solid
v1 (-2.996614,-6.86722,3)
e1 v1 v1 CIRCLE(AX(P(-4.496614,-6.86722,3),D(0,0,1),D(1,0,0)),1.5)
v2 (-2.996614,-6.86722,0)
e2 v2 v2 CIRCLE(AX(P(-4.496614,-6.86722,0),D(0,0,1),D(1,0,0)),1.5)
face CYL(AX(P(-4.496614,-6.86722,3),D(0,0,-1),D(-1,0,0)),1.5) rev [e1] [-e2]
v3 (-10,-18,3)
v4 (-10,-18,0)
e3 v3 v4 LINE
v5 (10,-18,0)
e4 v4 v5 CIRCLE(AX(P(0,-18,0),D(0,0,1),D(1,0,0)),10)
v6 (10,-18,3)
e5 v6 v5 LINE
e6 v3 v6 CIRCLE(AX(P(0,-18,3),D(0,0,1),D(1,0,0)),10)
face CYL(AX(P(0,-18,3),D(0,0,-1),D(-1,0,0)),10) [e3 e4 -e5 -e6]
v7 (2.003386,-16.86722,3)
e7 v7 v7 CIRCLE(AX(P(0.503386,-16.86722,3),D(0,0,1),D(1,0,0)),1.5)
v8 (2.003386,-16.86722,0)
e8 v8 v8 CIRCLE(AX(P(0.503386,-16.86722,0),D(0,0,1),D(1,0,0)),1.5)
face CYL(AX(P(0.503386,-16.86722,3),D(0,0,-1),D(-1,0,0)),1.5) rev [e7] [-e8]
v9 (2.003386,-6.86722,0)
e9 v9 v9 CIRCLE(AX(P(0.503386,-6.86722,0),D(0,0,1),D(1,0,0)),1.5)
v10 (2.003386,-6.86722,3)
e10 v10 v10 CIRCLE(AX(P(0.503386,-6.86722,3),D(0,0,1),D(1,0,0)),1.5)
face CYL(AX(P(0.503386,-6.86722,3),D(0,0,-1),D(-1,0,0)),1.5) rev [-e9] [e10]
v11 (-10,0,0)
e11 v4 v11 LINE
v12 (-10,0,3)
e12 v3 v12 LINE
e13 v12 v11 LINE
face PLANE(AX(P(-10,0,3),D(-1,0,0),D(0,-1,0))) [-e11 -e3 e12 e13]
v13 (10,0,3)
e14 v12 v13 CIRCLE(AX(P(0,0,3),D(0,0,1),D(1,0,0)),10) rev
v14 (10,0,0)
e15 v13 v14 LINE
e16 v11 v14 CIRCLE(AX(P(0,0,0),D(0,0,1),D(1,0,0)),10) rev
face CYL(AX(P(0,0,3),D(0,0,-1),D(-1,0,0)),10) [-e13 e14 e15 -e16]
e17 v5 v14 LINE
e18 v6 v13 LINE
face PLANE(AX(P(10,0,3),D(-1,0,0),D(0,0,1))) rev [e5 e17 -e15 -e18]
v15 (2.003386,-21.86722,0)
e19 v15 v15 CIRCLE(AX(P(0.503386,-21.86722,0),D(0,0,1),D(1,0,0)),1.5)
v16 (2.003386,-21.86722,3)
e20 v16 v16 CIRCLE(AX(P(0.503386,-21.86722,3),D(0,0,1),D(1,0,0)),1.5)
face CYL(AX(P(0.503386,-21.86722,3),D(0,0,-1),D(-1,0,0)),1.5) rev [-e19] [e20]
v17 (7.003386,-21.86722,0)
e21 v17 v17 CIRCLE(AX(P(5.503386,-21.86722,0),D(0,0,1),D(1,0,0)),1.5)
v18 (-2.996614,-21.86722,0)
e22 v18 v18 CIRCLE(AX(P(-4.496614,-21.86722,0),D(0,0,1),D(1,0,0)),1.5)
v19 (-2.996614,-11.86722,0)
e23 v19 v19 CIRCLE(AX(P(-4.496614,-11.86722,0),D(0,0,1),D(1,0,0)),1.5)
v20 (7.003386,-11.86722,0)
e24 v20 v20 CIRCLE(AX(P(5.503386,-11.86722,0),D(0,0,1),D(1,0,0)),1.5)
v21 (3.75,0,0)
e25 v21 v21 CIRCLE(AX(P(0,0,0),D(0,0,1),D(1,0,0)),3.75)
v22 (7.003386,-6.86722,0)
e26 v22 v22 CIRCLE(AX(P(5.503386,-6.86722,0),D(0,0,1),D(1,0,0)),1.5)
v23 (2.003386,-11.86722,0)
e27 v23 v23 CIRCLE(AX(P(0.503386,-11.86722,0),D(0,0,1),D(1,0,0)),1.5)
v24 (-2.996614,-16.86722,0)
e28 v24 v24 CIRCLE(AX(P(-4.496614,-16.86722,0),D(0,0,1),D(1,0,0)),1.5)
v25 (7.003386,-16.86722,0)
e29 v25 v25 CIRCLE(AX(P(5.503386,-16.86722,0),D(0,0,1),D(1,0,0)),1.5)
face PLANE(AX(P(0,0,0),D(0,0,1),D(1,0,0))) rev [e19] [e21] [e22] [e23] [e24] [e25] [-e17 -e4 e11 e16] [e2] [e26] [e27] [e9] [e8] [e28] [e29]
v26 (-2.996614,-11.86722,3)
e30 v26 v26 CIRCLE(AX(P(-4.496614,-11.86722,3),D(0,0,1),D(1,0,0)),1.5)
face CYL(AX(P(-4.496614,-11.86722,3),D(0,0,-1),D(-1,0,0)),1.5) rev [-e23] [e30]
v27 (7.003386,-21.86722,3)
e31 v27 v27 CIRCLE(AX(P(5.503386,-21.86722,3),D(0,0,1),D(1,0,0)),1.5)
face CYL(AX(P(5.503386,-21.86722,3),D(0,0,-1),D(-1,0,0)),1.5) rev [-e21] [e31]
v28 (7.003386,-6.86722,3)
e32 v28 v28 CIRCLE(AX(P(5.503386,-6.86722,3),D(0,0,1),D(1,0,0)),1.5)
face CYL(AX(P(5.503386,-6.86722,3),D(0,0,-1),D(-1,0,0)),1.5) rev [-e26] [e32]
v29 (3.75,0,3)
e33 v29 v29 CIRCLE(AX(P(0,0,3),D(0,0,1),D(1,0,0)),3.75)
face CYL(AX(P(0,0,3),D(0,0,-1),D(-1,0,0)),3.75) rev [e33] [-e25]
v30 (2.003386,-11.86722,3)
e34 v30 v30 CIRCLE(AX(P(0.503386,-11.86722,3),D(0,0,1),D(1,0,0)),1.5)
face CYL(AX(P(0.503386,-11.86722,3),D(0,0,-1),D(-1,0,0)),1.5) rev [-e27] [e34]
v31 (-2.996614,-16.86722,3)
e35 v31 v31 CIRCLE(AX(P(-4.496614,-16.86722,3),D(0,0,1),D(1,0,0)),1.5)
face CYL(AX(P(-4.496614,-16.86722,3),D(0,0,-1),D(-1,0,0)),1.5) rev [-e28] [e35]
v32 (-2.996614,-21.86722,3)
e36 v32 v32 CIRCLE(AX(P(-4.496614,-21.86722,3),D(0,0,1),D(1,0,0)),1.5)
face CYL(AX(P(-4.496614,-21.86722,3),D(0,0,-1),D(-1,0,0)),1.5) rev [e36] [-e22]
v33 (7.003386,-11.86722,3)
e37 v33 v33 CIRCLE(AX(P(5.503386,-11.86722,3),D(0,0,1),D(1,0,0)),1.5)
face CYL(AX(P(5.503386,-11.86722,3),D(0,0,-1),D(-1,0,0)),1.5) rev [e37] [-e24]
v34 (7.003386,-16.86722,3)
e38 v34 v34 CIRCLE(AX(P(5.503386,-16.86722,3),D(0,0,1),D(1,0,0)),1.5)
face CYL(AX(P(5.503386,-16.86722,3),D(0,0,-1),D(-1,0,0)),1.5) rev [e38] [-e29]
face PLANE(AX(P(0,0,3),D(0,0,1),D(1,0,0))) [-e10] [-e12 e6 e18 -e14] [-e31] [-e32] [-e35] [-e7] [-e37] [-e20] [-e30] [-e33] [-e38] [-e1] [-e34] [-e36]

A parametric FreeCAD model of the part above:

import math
import FreeCAD as App
import Part
import Sketcher

V = App.Vector

doc = App.newDocument("Part")
body = doc.addObject("PartDesign::Body", "Body")

# Sketch on XY plane
sketch1 = body.newObject("Sketcher::SketchObject", "Sketch")
sketch1.AttachmentSupport = (doc.getObject("XY_Plane"), [""])
sketch1.MapMode = "FlatFace"
sketch1.addGeometry(Part.LineSegment(V(-10, 0, 0), V(-10, -18, 0)), False)
sketch1.addGeometry(Part.ArcOfCircle(Part.Circle(V(0, -18, 0), V(0, 0, 1), 10), math.radians(180), math.radians(360)), False)
sketch1.addGeometry(Part.LineSegment(V(10, -18, 0), V(10, 0, 0)), False)
sketch1.addGeometry(Part.ArcOfCircle(Part.Circle(V(0, 0, 0), V(0, 0, 1), 10), math.radians(0), math.radians(180)), False)
sketch1.addGeometry(Part.Circle(V(5.5, -21.9, 0), V(0, 0, 1), 1.5), False)
sketch1.addGeometry(Part.Circle(V(5.5, -16.9, 0), V(0, 0, 1), 1.5), False)
sketch1.addGeometry(Part.Circle(V(5.5, -11.9, 0), V(0, 0, 1), 1.5), False)
sketch1.addGeometry(Part.Circle(V(0.5, -21.9, 0), V(0, 0, 1), 1.5), False)
sketch1.addGeometry(Part.Circle(V(0.5, -16.9, 0), V(0, 0, 1), 1.5), False)
sketch1.addGeometry(Part.Circle(V(-4.5, -21.9, 0), V(0, 0, 1), 1.5), False)
sketch1.addGeometry(Part.Circle(V(-4.5, -16.9, 0), V(0, 0, 1), 1.5), False)
sketch1.addGeometry(Part.Circle(V(0.5, -11.9, 0), V(0, 0, 1), 1.5), False)
sketch1.addGeometry(Part.Circle(V(-4.5, -11.9, 0), V(0, 0, 1), 1.5), False)
sketch1.addGeometry(Part.Circle(V(5.5, -6.9, 0), V(0, 0, 1), 1.5), False)
sketch1.addGeometry(Part.Circle(V(0.5, -6.9, 0), V(0, 0, 1), 1.5), False)
sketch1.addGeometry(Part.Circle(V(-4.5, -6.9, 0), V(0, 0, 1), 1.5), False)
sketch1.addGeometry(Part.Circle(V(0, 0, 0), V(0, 0, 1), 3.8), False)
sketch1.addConstraint(Sketcher.Constraint("Tangent", 0, 2, 1, 1))
sketch1.addConstraint(Sketcher.Constraint("Tangent", 1, 2, 2, 1))
sketch1.addConstraint(Sketcher.Constraint("Tangent", 2, 2, 3, 1))
sketch1.addConstraint(Sketcher.Constraint("Tangent", 3, 2, 0, 1))
sketch1.addConstraint(Sketcher.Constraint("Vertical", 0))
sketch1.addConstraint(Sketcher.Constraint("Vertical", 2))
sketch1.addConstraint(Sketcher.Constraint("Coincident", 3, 3, -1, 1))
sketch1.addConstraint(Sketcher.Constraint("Coincident", 16, 3, -1, 1))
sketch1.addConstraint(Sketcher.Constraint("Equal", 4, 5))
sketch1.addConstraint(Sketcher.Constraint("Equal", 5, 6))
sketch1.addConstraint(Sketcher.Constraint("Equal", 6, 7))
sketch1.addConstraint(Sketcher.Constraint("Equal", 7, 8))
sketch1.addConstraint(Sketcher.Constraint("Equal", 8, 9))
sketch1.addConstraint(Sketcher.Constraint("Equal", 9, 10))
sketch1.addConstraint(Sketcher.Constraint("Equal", 10, 11))
sketch1.addConstraint(Sketcher.Constraint("Equal", 11, 12))
sketch1.addConstraint(Sketcher.Constraint("Equal", 12, 13))
sketch1.addConstraint(Sketcher.Constraint("Equal", 13, 14))
sketch1.addConstraint(Sketcher.Constraint("Equal", 14, 15))
sketch1.addConstraint(Sketcher.Constraint("Horizontal", 4, 3, 7, 3))
sketch1.addConstraint(Sketcher.Constraint("Horizontal", 5, 3, 8, 3))
sketch1.addConstraint(Sketcher.Constraint("Horizontal", 7, 3, 9, 3))
sketch1.addConstraint(Sketcher.Constraint("Horizontal", 8, 3, 10, 3))
sketch1.addConstraint(Sketcher.Constraint("Horizontal", 6, 3, 11, 3))
sketch1.addConstraint(Sketcher.Constraint("Horizontal", 11, 3, 12, 3))
sketch1.addConstraint(Sketcher.Constraint("Horizontal", 13, 3, 14, 3))
sketch1.addConstraint(Sketcher.Constraint("Horizontal", 14, 3, 15, 3))
sketch1.addConstraint(Sketcher.Constraint("Vertical", 4, 3, 5, 3))
sketch1.addConstraint(Sketcher.Constraint("Vertical", 5, 3, 6, 3))
sketch1.addConstraint(Sketcher.Constraint("Vertical", 7, 3, 8, 3))
sketch1.addConstraint(Sketcher.Constraint("Vertical", 9, 3, 10, 3))
sketch1.addConstraint(Sketcher.Constraint("Vertical", 8, 3, 11, 3))
sketch1.addConstraint(Sketcher.Constraint("Vertical", 10, 3, 12, 3))
sketch1.addConstraint(Sketcher.Constraint("Vertical", 6, 3, 13, 3))
sketch1.addConstraint(Sketcher.Constraint("Vertical", 11, 3, 14, 3))
sketch1.addConstraint(Sketcher.Constraint("Vertical", 12, 3, 15, 3))
sketch1.addConstraint(Sketcher.Constraint("Diameter", 4, 3.0))
sketch1.addConstraint(Sketcher.Constraint("Radius", 1, 10.0))
sketch1.addConstraint(Sketcher.Constraint("Diameter", 16, 7.5))
sketch1.addConstraint(Sketcher.Constraint("DistanceY", 0, 2, 0, 1, 18.0))
sketch1.addConstraint(Sketcher.Constraint("DistanceY", 4, 3, 5, 3, 5.0))
sketch1.addConstraint(Sketcher.Constraint("DistanceY", 5, 3, 6, 3, 5.0))
sketch1.addConstraint(Sketcher.Constraint("DistanceX", 7, 3, 4, 3, 5.0))
sketch1.addConstraint(Sketcher.Constraint("DistanceX", 9, 3, 7, 3, 5.0))
sketch1.addConstraint(Sketcher.Constraint("DistanceY", 6, 3, 13, 3, 5.0))
sketch1.addConstraint(Sketcher.Constraint("DistanceY", 4, 3, -1, 1, 21.86722))
sketch1.addConstraint(Sketcher.Constraint("DistanceX", -1, 1, 4, 3, 5.503386))
pad1 = body.newObject("PartDesign::Pad", "Pad")
pad1.Profile = sketch1
pad1.Length = 3

doc.recompute()
